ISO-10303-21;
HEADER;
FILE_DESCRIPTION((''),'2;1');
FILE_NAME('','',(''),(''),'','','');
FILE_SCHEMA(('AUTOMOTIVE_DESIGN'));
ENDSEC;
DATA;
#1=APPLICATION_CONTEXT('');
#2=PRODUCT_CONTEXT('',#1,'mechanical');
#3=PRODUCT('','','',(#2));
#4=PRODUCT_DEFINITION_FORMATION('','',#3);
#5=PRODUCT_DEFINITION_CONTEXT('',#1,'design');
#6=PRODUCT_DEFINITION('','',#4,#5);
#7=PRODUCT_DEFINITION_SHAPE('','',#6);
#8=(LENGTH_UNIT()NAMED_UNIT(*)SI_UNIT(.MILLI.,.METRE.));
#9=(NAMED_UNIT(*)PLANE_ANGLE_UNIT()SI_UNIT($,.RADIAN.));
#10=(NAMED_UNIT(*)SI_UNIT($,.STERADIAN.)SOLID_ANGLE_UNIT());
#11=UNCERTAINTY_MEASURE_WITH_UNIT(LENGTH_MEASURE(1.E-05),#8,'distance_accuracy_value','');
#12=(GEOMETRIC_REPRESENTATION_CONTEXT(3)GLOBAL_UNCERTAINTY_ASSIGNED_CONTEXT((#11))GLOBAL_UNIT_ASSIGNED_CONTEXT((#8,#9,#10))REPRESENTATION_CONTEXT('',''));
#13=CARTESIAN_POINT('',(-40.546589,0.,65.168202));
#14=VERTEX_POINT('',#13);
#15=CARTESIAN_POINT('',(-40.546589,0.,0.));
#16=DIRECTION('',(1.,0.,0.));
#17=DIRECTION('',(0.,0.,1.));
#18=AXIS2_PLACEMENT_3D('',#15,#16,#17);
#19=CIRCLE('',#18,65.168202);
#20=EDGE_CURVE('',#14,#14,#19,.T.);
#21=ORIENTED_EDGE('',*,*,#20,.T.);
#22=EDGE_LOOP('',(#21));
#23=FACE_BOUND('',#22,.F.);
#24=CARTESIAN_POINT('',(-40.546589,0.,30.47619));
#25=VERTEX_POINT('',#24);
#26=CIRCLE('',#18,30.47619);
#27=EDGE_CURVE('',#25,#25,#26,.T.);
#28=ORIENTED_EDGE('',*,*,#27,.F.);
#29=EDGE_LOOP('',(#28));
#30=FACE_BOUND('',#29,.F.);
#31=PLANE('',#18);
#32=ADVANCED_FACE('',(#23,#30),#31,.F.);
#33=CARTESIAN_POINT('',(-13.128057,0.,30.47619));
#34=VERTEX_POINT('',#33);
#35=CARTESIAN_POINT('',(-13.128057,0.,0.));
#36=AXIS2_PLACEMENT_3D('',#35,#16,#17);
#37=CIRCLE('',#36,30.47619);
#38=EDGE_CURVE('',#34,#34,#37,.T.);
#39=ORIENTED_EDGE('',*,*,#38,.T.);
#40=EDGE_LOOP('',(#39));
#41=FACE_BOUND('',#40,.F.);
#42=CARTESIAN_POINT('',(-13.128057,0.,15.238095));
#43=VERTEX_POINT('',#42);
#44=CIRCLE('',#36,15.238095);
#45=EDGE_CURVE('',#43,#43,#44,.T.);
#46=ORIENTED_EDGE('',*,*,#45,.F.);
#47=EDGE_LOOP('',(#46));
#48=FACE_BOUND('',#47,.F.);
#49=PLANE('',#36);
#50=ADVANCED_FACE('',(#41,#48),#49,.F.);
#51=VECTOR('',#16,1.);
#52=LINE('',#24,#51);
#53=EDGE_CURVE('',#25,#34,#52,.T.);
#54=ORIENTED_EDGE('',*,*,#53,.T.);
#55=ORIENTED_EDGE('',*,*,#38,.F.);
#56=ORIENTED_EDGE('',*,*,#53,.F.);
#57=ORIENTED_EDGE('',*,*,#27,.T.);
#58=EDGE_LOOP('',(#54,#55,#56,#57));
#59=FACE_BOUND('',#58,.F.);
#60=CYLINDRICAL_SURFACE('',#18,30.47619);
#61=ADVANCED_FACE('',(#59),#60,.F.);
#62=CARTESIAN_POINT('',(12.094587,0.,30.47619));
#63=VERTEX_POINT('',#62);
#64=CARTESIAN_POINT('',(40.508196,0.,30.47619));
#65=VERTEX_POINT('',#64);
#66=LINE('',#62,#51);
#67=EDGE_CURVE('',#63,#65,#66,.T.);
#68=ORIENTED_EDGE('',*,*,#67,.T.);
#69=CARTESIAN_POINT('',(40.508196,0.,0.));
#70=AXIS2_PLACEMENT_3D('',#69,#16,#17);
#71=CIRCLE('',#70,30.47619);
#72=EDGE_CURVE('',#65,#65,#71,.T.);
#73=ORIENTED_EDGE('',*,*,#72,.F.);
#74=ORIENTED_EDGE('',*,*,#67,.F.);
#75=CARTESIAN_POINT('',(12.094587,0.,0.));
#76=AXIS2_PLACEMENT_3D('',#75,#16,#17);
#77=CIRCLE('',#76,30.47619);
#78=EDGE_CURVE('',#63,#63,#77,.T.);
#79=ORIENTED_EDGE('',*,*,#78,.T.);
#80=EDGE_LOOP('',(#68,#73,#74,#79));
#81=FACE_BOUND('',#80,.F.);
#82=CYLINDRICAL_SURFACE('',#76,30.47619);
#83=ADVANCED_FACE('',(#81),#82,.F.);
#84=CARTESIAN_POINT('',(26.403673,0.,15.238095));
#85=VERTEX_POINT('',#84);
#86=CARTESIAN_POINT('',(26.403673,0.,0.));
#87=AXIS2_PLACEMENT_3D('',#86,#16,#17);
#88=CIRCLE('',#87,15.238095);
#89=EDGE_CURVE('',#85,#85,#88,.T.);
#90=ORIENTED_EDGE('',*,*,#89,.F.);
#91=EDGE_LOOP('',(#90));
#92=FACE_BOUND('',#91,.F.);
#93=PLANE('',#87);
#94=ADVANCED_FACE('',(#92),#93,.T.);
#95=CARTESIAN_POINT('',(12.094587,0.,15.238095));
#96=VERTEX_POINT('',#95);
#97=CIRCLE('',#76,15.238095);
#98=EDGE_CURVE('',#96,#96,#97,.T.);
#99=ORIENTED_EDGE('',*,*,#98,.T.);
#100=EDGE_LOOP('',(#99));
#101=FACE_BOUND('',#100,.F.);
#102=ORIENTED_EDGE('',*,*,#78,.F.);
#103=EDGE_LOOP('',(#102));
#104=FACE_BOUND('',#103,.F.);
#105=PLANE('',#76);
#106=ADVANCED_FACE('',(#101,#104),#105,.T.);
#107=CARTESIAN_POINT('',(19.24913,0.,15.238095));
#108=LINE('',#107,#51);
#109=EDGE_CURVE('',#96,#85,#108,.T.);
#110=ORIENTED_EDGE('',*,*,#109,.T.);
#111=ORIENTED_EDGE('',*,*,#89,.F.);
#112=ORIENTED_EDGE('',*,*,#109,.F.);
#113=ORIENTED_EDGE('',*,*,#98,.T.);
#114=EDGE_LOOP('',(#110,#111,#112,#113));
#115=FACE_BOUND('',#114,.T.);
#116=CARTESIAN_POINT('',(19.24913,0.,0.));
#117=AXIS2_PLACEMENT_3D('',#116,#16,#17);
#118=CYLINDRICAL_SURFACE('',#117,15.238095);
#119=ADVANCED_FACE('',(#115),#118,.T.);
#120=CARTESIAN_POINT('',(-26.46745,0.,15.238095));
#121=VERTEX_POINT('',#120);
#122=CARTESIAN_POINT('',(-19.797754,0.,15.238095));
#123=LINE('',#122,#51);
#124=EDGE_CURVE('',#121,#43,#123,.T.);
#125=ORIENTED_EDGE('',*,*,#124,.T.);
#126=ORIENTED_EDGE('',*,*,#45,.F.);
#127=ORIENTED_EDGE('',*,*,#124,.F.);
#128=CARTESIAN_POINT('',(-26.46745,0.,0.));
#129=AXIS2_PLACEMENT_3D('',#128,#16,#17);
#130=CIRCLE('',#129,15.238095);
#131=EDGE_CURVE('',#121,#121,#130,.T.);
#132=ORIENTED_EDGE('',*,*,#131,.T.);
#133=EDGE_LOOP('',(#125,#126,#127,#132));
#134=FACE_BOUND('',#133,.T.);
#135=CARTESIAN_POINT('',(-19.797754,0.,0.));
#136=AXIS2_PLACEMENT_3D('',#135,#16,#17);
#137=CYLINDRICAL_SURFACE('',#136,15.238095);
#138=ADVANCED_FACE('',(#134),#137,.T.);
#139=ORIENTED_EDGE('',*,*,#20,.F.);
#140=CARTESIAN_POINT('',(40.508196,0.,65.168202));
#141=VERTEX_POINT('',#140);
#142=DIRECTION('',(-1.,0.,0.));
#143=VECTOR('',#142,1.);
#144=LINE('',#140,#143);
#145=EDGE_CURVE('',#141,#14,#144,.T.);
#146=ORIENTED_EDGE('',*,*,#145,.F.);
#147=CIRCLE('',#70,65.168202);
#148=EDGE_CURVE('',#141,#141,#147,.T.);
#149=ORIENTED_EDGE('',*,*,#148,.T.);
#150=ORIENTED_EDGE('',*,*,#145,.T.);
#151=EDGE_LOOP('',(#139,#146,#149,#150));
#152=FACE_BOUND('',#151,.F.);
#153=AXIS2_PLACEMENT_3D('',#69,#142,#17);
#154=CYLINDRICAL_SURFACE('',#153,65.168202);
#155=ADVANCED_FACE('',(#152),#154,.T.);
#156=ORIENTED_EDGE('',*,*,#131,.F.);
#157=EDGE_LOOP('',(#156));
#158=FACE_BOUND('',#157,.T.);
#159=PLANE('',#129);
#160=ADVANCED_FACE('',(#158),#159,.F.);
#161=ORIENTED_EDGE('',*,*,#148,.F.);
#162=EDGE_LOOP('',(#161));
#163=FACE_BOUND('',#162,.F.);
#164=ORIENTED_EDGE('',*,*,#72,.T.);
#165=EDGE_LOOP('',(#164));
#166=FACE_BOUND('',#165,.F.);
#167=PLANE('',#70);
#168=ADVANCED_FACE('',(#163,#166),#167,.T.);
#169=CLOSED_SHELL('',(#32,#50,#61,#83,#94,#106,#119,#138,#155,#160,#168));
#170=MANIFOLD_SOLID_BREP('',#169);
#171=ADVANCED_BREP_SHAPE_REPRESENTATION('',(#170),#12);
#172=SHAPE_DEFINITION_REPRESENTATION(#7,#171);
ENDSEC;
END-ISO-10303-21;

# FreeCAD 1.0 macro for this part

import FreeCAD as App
import Part
import Sketcher

V = App.Vector
Q = App.Units.Quantity

doc = App.newDocument("Part")
body = doc.addObject("PartDesign::Body", "Body")

sketch1 = body.newObject("Sketcher::SketchObject", "Sketch")
sketch1.AttachmentSupport = (doc.getObject("XZ_Plane"), [""])
sketch1.MapMode = "FlatFace"
sketch1.addGeometry([
    Part.LineSegment(V(12, 0, 0), V(26, 0, 0)),
    Part.LineSegment(V(26, 0, 0), V(26, 15, 0)),
    Part.LineSegment(V(26, 15, 0), V(12, 15, 0)),
    Part.LineSegment(V(12, 15, 0), V(12, 30, 0)),
    Part.LineSegment(V(12, 30, 0), V(41, 30, 0)),
    Part.LineSegment(V(41, 30, 0), V(41, 65, 0)),
    Part.LineSegment(V(41, 65, 0), V(-41, 65, 0)),
    Part.LineSegment(V(-41, 65, 0), V(-41, 30, 0)),
    Part.LineSegment(V(-41, 30, 0), V(-13, 30, 0)),
    Part.LineSegment(V(-13, 30, 0), V(-13, 15, 0)),
    Part.LineSegment(V(-13, 15, 0), V(-26, 15, 0)),
    Part.LineSegment(V(-26, 15, 0), V(-26, 0, 0)),
    Part.LineSegment(V(-26, 0, 0), V(-13, 0, 0)),
    Part.LineSegment(V(-13, 0, 0), V(12, 0, 0)),
], False)
sketch1.addConstraint([
    Sketcher.Constraint("Coincident", 0, 2, 1, 1),
    Sketcher.Constraint("Coincident", 1, 2, 2, 1),
    Sketcher.Constraint("Coincident", 2, 2, 3, 1),
    Sketcher.Constraint("Coincident", 3, 2, 4, 1),
    Sketcher.Constraint("Coincident", 4, 2, 5, 1),
    Sketcher.Constraint("Coincident", 5, 2, 6, 1),
    Sketcher.Constraint("Coincident", 6, 2, 7, 1),
    Sketcher.Constraint("Coincident", 7, 2, 8, 1),
    Sketcher.Constraint("Coincident", 8, 2, 9, 1),
    Sketcher.Constraint("Coincident", 9, 2, 10, 1),
    Sketcher.Constraint("Coincident", 10, 2, 11, 1),
    Sketcher.Constraint("Coincident", 11, 2, 12, 1),
    Sketcher.Constraint("Coincident", 12, 2, 13, 1),
    Sketcher.Constraint("Coincident", 13, 2, 0, 1),
    Sketcher.Constraint("Horizontal", 0),
    Sketcher.Constraint("Vertical", 1),
    Sketcher.Constraint("Horizontal", 2),
    Sketcher.Constraint("Vertical", 3),
    Sketcher.Constraint("Horizontal", 4),
    Sketcher.Constraint("Vertical", 5),
    Sketcher.Constraint("Horizontal", 6),
    Sketcher.Constraint("Vertical", 7),
    Sketcher.Constraint("Horizontal", 8),
    Sketcher.Constraint("Vertical", 9),
    Sketcher.Constraint("Horizontal", 10),
    Sketcher.Constraint("Vertical", 11),
    Sketcher.Constraint("Horizontal", 12),
    Sketcher.Constraint("Horizontal", 13),
    Sketcher.Constraint("PointOnObject", 0, 2, -1),
    Sketcher.Constraint("Horizontal", 4, 2, 7, 2),
    Sketcher.Constraint("Horizontal", 2, 2, 9, 2),
    Sketcher.Constraint("Vertical", 9, 2, 12, 2),
    Sketcher.Constraint("Vertical", 3, 2, 13, 2),
    Sketcher.Constraint("Equal", 1, 3),
    Sketcher.Constraint("DistanceX", 4, 1, 4, 2, Q("28.413609 mm")),
    Sketcher.Constraint("DistanceX", 8, 1, 8, 2, Q("27.418531 mm")),
    Sketcher.Constraint("DistanceY", 5, 1, 5, 2, Q("34.692012 mm")),
    Sketcher.Constraint("DistanceY", -1, 1, 5, 2, Q("65.168202 mm")),
    Sketcher.Constraint("DistanceX", 0, 1, 0, 2, Q("14.309086 mm")),
    Sketcher.Constraint("DistanceX", 6, 2, 6, 1, Q("81.054784 mm")),
    Sketcher.Constraint("DistanceX", 10, 2, 10, 1, Q("13.339393 mm")),
    Sketcher.Constraint("DistanceX", 6, 2, -1, 1, Q("40.546589 mm")),
])
revolution = body.newObject("PartDesign::Revolution", "Revolution")
revolution.Profile = sketch1
revolution.ReferenceAxis = (sketch1, ["H_Axis"])
revolution.Angle = 360

doc.recompute()
